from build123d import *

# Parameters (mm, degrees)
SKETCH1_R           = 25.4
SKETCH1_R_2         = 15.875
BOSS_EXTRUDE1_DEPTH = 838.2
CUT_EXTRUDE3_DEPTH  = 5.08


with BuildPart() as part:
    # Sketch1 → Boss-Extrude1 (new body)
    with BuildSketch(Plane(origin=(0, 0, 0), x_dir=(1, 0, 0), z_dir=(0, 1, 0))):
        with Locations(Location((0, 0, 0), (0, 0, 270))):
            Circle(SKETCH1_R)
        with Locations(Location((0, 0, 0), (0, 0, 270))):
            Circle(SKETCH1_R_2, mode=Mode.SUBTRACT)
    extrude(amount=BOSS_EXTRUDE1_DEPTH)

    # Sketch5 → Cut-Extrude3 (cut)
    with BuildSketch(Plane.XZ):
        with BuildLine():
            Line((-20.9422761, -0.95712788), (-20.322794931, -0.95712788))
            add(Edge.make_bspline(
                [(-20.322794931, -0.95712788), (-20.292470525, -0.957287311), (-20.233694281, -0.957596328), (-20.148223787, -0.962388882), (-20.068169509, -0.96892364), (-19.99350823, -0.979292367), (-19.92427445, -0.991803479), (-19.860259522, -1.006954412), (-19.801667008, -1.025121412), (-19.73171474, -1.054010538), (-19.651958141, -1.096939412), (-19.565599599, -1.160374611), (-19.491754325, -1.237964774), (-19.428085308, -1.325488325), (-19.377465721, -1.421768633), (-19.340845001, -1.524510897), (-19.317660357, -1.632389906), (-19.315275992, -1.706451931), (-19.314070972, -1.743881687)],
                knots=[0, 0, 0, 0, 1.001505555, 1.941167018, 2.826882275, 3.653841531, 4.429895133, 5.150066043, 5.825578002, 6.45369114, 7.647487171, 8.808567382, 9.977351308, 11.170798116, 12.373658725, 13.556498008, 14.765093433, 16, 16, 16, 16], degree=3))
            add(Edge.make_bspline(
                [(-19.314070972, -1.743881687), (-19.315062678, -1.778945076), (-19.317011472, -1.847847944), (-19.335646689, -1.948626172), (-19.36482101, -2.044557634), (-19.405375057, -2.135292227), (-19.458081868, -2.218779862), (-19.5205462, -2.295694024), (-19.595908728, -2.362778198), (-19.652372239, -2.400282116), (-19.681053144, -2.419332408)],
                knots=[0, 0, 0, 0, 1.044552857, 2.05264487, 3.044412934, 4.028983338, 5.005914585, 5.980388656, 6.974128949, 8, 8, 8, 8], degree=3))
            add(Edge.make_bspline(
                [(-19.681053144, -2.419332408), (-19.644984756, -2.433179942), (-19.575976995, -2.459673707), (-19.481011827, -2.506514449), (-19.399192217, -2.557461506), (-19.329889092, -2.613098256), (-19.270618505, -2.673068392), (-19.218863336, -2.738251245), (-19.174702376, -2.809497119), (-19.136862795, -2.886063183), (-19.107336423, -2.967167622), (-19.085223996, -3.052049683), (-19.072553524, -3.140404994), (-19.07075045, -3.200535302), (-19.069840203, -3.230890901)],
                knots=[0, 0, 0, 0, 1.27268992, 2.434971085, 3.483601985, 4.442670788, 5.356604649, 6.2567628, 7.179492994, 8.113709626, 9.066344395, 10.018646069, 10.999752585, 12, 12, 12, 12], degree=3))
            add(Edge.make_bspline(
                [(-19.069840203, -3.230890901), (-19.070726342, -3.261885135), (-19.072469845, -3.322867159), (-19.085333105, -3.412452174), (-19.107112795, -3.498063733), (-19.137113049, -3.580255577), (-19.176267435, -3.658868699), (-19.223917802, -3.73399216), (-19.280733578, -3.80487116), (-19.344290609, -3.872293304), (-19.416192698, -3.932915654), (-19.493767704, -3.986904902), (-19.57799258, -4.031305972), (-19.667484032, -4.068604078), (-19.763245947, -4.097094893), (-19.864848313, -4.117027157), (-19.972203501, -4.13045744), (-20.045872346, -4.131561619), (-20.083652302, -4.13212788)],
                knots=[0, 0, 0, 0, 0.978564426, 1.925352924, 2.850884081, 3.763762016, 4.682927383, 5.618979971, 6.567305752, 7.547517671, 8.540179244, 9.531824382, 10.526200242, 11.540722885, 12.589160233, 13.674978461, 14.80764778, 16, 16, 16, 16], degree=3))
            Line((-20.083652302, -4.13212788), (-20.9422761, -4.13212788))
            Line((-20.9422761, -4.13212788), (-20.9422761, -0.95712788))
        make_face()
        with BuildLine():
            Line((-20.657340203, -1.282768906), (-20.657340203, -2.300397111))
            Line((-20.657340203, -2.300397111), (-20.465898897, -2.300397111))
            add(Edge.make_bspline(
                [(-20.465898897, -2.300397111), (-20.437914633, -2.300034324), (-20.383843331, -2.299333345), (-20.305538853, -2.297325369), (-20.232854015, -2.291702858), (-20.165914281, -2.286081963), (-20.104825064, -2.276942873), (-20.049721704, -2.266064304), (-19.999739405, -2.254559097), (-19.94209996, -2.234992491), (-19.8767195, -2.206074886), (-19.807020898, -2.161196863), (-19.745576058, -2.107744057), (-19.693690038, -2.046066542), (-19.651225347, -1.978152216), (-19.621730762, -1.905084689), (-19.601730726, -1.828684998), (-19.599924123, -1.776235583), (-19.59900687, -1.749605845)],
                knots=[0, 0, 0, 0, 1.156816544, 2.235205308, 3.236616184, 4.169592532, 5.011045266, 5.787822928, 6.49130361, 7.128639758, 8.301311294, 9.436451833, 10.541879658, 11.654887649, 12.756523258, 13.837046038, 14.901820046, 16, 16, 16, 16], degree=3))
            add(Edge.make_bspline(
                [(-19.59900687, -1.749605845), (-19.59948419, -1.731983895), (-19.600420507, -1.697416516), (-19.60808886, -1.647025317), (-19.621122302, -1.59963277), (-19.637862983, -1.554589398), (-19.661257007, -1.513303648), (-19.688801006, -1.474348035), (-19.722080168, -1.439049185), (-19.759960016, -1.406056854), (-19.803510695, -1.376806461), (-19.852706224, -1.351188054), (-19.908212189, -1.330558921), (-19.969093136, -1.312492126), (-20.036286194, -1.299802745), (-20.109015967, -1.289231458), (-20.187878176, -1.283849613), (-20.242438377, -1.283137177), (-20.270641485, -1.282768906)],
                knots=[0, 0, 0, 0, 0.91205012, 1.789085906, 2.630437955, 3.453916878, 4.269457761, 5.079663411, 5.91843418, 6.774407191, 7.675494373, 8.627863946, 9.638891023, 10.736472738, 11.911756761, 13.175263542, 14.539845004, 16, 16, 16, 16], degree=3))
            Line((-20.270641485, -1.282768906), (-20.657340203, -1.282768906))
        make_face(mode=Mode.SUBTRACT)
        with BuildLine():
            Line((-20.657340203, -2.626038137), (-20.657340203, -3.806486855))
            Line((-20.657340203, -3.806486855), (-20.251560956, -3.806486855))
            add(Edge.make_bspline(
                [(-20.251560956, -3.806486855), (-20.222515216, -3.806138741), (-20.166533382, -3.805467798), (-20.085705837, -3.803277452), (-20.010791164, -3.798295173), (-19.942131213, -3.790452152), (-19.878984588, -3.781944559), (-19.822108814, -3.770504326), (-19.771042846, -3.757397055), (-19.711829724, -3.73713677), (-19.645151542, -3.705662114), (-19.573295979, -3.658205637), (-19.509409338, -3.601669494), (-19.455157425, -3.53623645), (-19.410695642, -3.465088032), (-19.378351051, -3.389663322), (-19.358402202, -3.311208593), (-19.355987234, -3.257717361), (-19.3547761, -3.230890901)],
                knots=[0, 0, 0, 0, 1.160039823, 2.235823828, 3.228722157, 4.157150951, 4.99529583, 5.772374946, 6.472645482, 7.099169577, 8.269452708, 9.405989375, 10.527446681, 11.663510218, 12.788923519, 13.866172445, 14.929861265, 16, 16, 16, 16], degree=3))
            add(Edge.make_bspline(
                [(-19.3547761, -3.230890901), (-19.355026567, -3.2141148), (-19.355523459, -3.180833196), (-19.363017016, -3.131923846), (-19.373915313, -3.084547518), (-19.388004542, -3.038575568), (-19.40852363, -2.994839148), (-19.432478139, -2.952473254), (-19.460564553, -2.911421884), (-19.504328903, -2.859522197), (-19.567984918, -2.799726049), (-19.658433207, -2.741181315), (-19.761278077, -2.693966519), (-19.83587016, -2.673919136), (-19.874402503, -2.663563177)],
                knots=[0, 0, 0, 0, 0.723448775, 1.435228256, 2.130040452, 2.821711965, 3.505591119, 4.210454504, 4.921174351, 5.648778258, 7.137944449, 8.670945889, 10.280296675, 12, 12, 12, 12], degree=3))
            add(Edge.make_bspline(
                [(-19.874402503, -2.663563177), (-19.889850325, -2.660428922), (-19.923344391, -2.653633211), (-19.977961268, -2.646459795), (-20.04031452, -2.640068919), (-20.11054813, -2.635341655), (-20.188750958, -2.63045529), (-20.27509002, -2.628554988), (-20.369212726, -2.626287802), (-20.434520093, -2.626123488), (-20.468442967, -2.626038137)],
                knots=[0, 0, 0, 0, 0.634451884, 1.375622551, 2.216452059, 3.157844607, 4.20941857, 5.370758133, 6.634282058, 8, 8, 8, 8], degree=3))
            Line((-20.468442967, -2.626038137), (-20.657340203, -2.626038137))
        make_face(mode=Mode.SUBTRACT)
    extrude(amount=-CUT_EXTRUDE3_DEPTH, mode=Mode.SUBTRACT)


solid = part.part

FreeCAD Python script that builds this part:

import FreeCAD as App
import Part
import Sketcher
from FreeCAD import Vector
Q = App.Units.Quantity

doc = App.newDocument("Part")
body = doc.addObject("PartDesign::Body", "Body")

sketch1 = body.newObject("Sketcher::SketchObject", "Sketch")
sketch1.AttachmentSupport = (doc.getObject("XZ_Plane"), [""])
sketch1.MapMode = "FlatFace"
sketch1.addGeometry([
    Part.Circle(Vector(0, 0, 0), Vector(0, 0, 1), 25),
    Part.Circle(Vector(0, 0, 0), Vector(0, 0, 1), 16),
], False)
sketch1.addConstraint([
    Sketcher.Constraint("Coincident", 0, 3, -1, 1),
    Sketcher.Constraint("Coincident", 1, 3, -1, 1),
    Sketcher.Constraint("Diameter", 0, Q("2 in")),
    Sketcher.Constraint("Diameter", 1, Q("1.25 in")),
])
pad1 = body.newObject("PartDesign::Pad", "Pad")
pad1.Profile = sketch1
pad1.Length = Q("33 in")
pad1.Reversed = True

sketch2 = body.newObject("Sketcher::SketchObject", "Sketch001")
sketch2.AttachmentSupport = (doc.getObject("XZ_Plane"), [""])
sketch2.MapMode = "FlatFace"
sketch2.addGeometry([
    Part.LineSegment(Vector(-20.322795, -0.957128, 0), Vector(-20.942276, -0.957128, 0)),
    Part.LineSegment(Vector(-20.942276, -0.957128, 0), Vector(-20.942276, -4.132128, 0)),
    Part.LineSegment(Vector(-20.942276, -4.132128, 0), Vector(-20.083652, -4.132128, 0)),
    Part.BSplineCurve([Vector(-19.06984, -3.230891, 0), Vector(-19.070726, -3.261885, 0), Vector(-19.07247, -3.322867, 0), Vector(-19.085333, -3.412452, 0), Vector(-19.107113, -3.498064, 0), Vector(-19.137113, -3.580256, 0), Vector(-19.176267, -3.658869, 0), Vector(-19.223918, -3.733992, 0), Vector(-19.280734, -3.804871, 0), Vector(-19.344291, -3.872293, 0), Vector(-19.416193, -3.932916, 0), Vector(-19.493768, -3.986905, 0), Vector(-19.577993, -4.031306, 0), Vector(-19.667484, -4.068604, 0), Vector(-19.763246, -4.097095, 0), Vector(-19.864848, -4.117027, 0), Vector(-19.972204, -4.130457, 0), Vector(-20.045872, -4.131562, 0), Vector(-20.083652, -4.132128, 0)], [4, 1, 1, 1, 1, 1, 1, 1, 1, 1, 1, 1, 1, 1, 1, 1, 4], [0, 0.978564426, 1.925352924, 2.850884081, 3.763762016, 4.682927383, 5.618979971, 6.567305752, 7.547517671, 8.540179244, 9.531824382, 10.526200242, 11.540722885, 12.589160233, 13.674978461, 14.80764778, 16], False, 3, [1, 1, 1, 1, 1, 1, 1, 1, 1, 1, 1, 1, 1, 1, 1, 1, 1, 1, 1], False),
    Part.BSplineCurve([Vector(-19.681053, -2.419332, 0), Vector(-19.644985, -2.43318, 0), Vector(-19.575977, -2.459674, 0), Vector(-19.481012, -2.506514, 0), Vector(-19.399192, -2.557462, 0), Vector(-19.329889, -2.613098, 0), Vector(-19.270619, -2.673068, 0), Vector(-19.218863, -2.738251, 0), Vector(-19.174702, -2.809497, 0), Vector(-19.136863, -2.886063, 0), Vector(-19.107336, -2.967168, 0), Vector(-19.085224, -3.05205, 0), Vector(-19.072554, -3.140405, 0), Vector(-19.07075, -3.200535, 0), Vector(-19.06984, -3.230891, 0)], [4, 1, 1, 1, 1, 1, 1, 1, 1, 1, 1, 1, 4], [0, 1.27268992, 2.434971085, 3.483601985, 4.442670788, 5.356604649, 6.2567628, 7.179492994, 8.113709626, 9.066344395, 10.018646069, 10.999752585, 12], False, 3, [1, 1, 1, 1, 1, 1, 1, 1, 1, 1, 1, 1, 1, 1, 1], False),
    Part.BSplineCurve([Vector(-19.314071, -1.743882, 0), Vector(-19.315063, -1.778945, 0), Vector(-19.317011, -1.847848, 0), Vector(-19.335647, -1.948626, 0), Vector(-19.364821, -2.044558, 0), Vector(-19.405375, -2.135292, 0), Vector(-19.458082, -2.21878, 0), Vector(-19.520546, -2.295694, 0), Vector(-19.595909, -2.362778, 0), Vector(-19.652372, -2.400282, 0), Vector(-19.681053, -2.419332, 0)], [4, 1, 1, 1, 1, 1, 1, 1, 4], [0, 1.044552857, 2.05264487, 3.044412934, 4.028983338, 5.005914585, 5.980388656, 6.974128949, 8], False, 3, [1, 1, 1, 1, 1, 1, 1, 1, 1, 1, 1], False),
    Part.BSplineCurve([Vector(-20.322795, -0.957128, 0), Vector(-20.292471, -0.957287, 0), Vector(-20.233694, -0.957596, 0), Vector(-20.148224, -0.962389, 0), Vector(-20.06817, -0.968924, 0), Vector(-19.993508, -0.979292, 0), Vector(-19.924274, -0.991803, 0), Vector(-19.86026, -1.006954, 0), Vector(-19.801667, -1.025121, 0), Vector(-19.731715, -1.054011, 0), Vector(-19.651958, -1.096939, 0), Vector(-19.5656, -1.160375, 0), Vector(-19.491754, -1.237965, 0), Vector(-19.428085, -1.325488, 0), Vector(-19.377466, -1.421769, 0), Vector(-19.340845, -1.524511, 0), Vector(-19.31766, -1.63239, 0), Vector(-19.315276, -1.706452, 0), Vector(-19.314071, -1.743882, 0)], [4, 1, 1, 1, 1, 1, 1, 1, 1, 1, 1, 1, 1, 1, 1, 1, 4], [0, 1.001505555, 1.941167018, 2.826882275, 3.653841531, 4.429895133, 5.150066043, 5.825578002, 6.45369114, 7.647487171, 8.808567382, 9.977351308, 11.170798116, 12.373658725, 13.556498008, 14.765093433, 16], False, 3, [1, 1, 1, 1, 1, 1, 1, 1, 1, 1, 1, 1, 1, 1, 1, 1, 1, 1, 1], False),
    Part.LineSegment(Vector(-20.65734, -2.626038, 0), Vector(-20.468443, -2.626038, 0)),
    Part.BSplineCurve([Vector(-19.874403, -2.663563, 0), Vector(-19.88985, -2.660429, 0), Vector(-19.923344, -2.653633, 0), Vector(-19.977961, -2.64646, 0), Vector(-20.040315, -2.640069, 0), Vector(-20.110548, -2.635342, 0), Vector(-20.188751, -2.630455, 0), Vector(-20.27509, -2.628555, 0), Vector(-20.369213, -2.626288, 0), Vector(-20.43452, -2.626123, 0), Vector(-20.468443, -2.626038, 0)], [4, 1, 1, 1, 1, 1, 1, 1, 4], [0, 0.634451884, 1.375622551, 2.216452059, 3.157844607, 4.20941857, 5.370758133, 6.634282058, 8], False, 3, [1, 1, 1, 1, 1, 1, 1, 1, 1, 1, 1], False),
    Part.BSplineCurve([Vector(-19.354776, -3.230891, 0), Vector(-19.355027, -3.214115, 0), Vector(-19.355523, -3.180833, 0), Vector(-19.363017, -3.131924, 0), Vector(-19.373915, -3.084548, 0), Vector(-19.388005, -3.038576, 0), Vector(-19.408524, -2.994839, 0), Vector(-19.432478, -2.952473, 0), Vector(-19.460565, -2.911422, 0), Vector(-19.504329, -2.859522, 0), Vector(-19.567985, -2.799726, 0), Vector(-19.658433, -2.741181, 0), Vector(-19.761278, -2.693967, 0), Vector(-19.83587, -2.673919, 0), Vector(-19.874403, -2.663563, 0)], [4, 1, 1, 1, 1, 1, 1, 1, 1, 1, 1, 1, 4], [0, 0.723448775, 1.435228256, 2.130040452, 2.821711965, 3.505591119, 4.210454504, 4.921174351, 5.648778258, 7.137944449, 8.670945889, 10.280296675, 12], False, 3, [1, 1, 1, 1, 1, 1, 1, 1, 1, 1, 1, 1, 1, 1, 1], False),
    Part.BSplineCurve([Vector(-20.251561, -3.806487, 0), Vector(-20.222515, -3.806139, 0), Vector(-20.166533, -3.805468, 0), Vector(-20.085706, -3.803277, 0), Vector(-20.010791, -3.798295, 0), Vector(-19.942131, -3.790452, 0), Vector(-19.878985, -3.781945, 0), Vector(-19.822109, -3.770504, 0), Vector(-19.771043, -3.757397, 0), Vector(-19.71183, -3.737137, 0), Vector(-19.645152, -3.705662, 0), Vector(-19.573296, -3.658206, 0), Vector(-19.509409, -3.601669, 0), Vector(-19.455157, -3.536236, 0), Vector(-19.410696, -3.465088, 0), Vector(-19.378351, -3.389663, 0), Vector(-19.358402, -3.311209, 0), Vector(-19.355987, -3.257717, 0), Vector(-19.354776, -3.230891, 0)], [4, 1, 1, 1, 1, 1, 1, 1, 1, 1, 1, 1, 1, 1, 1, 1, 4], [0, 1.160039823, 2.235823828, 3.228722157, 4.157150951, 4.99529583, 5.772374946, 6.472645482, 7.099169577, 8.269452708, 9.405989375, 10.527446681, 11.663510218, 12.788923519, 13.866172445, 14.929861265, 16], False, 3, [1, 1, 1, 1, 1, 1, 1, 1, 1, 1, 1, 1, 1, 1, 1, 1, 1, 1, 1], False),
    Part.LineSegment(Vector(-20.251561, -3.806487, 0), Vector(-20.65734, -3.806487, 0)),
    Part.LineSegment(Vector(-20.65734, -3.806487, 0), Vector(-20.65734, -2.626038, 0)),
    Part.LineSegment(Vector(-20.65734, -1.282769, 0), Vector(-20.270641, -1.282769, 0)),
    Part.BSplineCurve([Vector(-19.599007, -1.749606, 0), Vector(-19.599484, -1.731984, 0), Vector(-19.600421, -1.697417, 0), Vector(-19.608089, -1.647025, 0), Vector(-19.621122, -1.599633, 0), Vector(-19.637863, -1.554589, 0), Vector(-19.661257, -1.513304, 0), Vector(-19.688801, -1.474348, 0), Vector(-19.72208, -1.439049, 0), Vector(-19.75996, -1.406057, 0), Vector(-19.803511, -1.376806, 0), Vector(-19.852706, -1.351188, 0), Vector(-19.908212, -1.330559, 0), Vector(-19.969093, -1.312492, 0), Vector(-20.036286, -1.299803, 0), Vector(-20.109016, -1.289231, 0), Vector(-20.187878, -1.28385, 0), Vector(-20.242438, -1.283137, 0), Vector(-20.270641, -1.282769, 0)], [4, 1, 1, 1, 1, 1, 1, 1, 1, 1, 1, 1, 1, 1, 1, 1, 4], [0, 0.91205012, 1.789085906, 2.630437955, 3.453916878, 4.269457761, 5.079663411, 5.91843418, 6.774407191, 7.675494373, 8.627863946, 9.638891023, 10.736472738, 11.911756761, 13.175263542, 14.539845004, 16], False, 3, [1, 1, 1, 1, 1, 1, 1, 1, 1, 1, 1, 1, 1, 1, 1, 1, 1, 1, 1], False),
    Part.BSplineCurve([Vector(-20.465899, -2.300397, 0), Vector(-20.437915, -2.300034, 0), Vector(-20.383843, -2.299333, 0), Vector(-20.305539, -2.297325, 0), Vector(-20.232854, -2.291703, 0), Vector(-20.165914, -2.286082, 0), Vector(-20.104825, -2.276943, 0), Vector(-20.049722, -2.266064, 0), Vector(-19.999739, -2.254559, 0), Vector(-19.9421, -2.234992, 0), Vector(-19.87672, -2.206075, 0), Vector(-19.807021, -2.161197, 0), Vector(-19.745576, -2.107744, 0), Vector(-19.69369, -2.046067, 0), Vector(-19.651225, -1.978152, 0), Vector(-19.621731, -1.905085, 0), Vector(-19.601731, -1.828685, 0), Vector(-19.599924, -1.776236, 0), Vector(-19.599007, -1.749606, 0)], [4, 1, 1, 1, 1, 1, 1, 1, 1, 1, 1, 1, 1, 1, 1, 1, 4], [0, 1.156816544, 2.235205308, 3.236616184, 4.169592532, 5.011045266, 5.787822928, 6.49130361, 7.128639758, 8.301311294, 9.436451833, 10.541879658, 11.654887649, 12.756523258, 13.837046038, 14.901820046, 16], False, 3, [1, 1, 1, 1, 1, 1, 1, 1, 1, 1, 1, 1, 1, 1, 1, 1, 1, 1, 1], False),
    Part.LineSegment(Vector(-20.465899, -2.300397, 0), Vector(-20.65734, -2.300397, 0)),
    Part.LineSegment(Vector(-20.65734, -2.300397, 0), Vector(-20.65734, -1.282769, 0)),
], False)
sketch2.addConstraint([
    Sketcher.Constraint("Block", 3),
    Sketcher.Constraint("Block", 4),
    Sketcher.Constraint("Block", 5),
    Sketcher.Constraint("Block", 6),
    Sketcher.Constraint("Block", 8),
    Sketcher.Constraint("Block", 9),
    Sketcher.Constraint("Block", 10),
    Sketcher.Constraint("Block", 14),
    Sketcher.Constraint("Block", 15),
    Sketcher.Constraint("Coincident", 0, 2, 1, 1),
    Sketcher.Constraint("Coincident", 1, 2, 2, 1),
    Sketcher.Constraint("Coincident", 2, 2, 3, 2),
    Sketcher.Constraint("Coincident", 6, 1, 0, 1),
    Sketcher.Constraint("Coincident", 7, 2, 8, 2),
    Sketcher.Constraint("Coincident", 10, 1, 11, 1),
    Sketcher.Constraint("Coincident", 11, 2, 12, 1),
    Sketcher.Constraint("Coincident", 12, 2, 7, 1),
    Sketcher.Constraint("Coincident", 13, 2, 14, 2),
    Sketcher.Constraint("Coincident", 15, 1, 16, 1),
    Sketcher.Constraint("Coincident", 16, 2, 17, 1),
    Sketcher.Constraint("Coincident", 17, 2, 13, 1),
    Sketcher.Constraint("Horizontal", 0),
    Sketcher.Constraint("Vertical", 1),
    Sketcher.Constraint("Horizontal", 2),
    Sketcher.Constraint("Horizontal", 7),
    Sketcher.Constraint("Horizontal", 11),
    Sketcher.Constraint("Vertical", 12),
    Sketcher.Constraint("Horizontal", 13),
    Sketcher.Constraint("Horizontal", 16),
    Sketcher.Constraint("Vertical", 17),
    Sketcher.Constraint("Vertical", 12, 2, 16, 2),
    Sketcher.Constraint("DistanceX", 13, 1, 13, 2, 0.386699),
    Sketcher.Constraint("DistanceX", 0, 2, 0, 1, 0.619481),
])
pocket1 = body.newObject("PartDesign::Pocket", "Pocket")
pocket1.Profile = sketch2
pocket1.Length = Q("0.2 in")

doc.recompute()
